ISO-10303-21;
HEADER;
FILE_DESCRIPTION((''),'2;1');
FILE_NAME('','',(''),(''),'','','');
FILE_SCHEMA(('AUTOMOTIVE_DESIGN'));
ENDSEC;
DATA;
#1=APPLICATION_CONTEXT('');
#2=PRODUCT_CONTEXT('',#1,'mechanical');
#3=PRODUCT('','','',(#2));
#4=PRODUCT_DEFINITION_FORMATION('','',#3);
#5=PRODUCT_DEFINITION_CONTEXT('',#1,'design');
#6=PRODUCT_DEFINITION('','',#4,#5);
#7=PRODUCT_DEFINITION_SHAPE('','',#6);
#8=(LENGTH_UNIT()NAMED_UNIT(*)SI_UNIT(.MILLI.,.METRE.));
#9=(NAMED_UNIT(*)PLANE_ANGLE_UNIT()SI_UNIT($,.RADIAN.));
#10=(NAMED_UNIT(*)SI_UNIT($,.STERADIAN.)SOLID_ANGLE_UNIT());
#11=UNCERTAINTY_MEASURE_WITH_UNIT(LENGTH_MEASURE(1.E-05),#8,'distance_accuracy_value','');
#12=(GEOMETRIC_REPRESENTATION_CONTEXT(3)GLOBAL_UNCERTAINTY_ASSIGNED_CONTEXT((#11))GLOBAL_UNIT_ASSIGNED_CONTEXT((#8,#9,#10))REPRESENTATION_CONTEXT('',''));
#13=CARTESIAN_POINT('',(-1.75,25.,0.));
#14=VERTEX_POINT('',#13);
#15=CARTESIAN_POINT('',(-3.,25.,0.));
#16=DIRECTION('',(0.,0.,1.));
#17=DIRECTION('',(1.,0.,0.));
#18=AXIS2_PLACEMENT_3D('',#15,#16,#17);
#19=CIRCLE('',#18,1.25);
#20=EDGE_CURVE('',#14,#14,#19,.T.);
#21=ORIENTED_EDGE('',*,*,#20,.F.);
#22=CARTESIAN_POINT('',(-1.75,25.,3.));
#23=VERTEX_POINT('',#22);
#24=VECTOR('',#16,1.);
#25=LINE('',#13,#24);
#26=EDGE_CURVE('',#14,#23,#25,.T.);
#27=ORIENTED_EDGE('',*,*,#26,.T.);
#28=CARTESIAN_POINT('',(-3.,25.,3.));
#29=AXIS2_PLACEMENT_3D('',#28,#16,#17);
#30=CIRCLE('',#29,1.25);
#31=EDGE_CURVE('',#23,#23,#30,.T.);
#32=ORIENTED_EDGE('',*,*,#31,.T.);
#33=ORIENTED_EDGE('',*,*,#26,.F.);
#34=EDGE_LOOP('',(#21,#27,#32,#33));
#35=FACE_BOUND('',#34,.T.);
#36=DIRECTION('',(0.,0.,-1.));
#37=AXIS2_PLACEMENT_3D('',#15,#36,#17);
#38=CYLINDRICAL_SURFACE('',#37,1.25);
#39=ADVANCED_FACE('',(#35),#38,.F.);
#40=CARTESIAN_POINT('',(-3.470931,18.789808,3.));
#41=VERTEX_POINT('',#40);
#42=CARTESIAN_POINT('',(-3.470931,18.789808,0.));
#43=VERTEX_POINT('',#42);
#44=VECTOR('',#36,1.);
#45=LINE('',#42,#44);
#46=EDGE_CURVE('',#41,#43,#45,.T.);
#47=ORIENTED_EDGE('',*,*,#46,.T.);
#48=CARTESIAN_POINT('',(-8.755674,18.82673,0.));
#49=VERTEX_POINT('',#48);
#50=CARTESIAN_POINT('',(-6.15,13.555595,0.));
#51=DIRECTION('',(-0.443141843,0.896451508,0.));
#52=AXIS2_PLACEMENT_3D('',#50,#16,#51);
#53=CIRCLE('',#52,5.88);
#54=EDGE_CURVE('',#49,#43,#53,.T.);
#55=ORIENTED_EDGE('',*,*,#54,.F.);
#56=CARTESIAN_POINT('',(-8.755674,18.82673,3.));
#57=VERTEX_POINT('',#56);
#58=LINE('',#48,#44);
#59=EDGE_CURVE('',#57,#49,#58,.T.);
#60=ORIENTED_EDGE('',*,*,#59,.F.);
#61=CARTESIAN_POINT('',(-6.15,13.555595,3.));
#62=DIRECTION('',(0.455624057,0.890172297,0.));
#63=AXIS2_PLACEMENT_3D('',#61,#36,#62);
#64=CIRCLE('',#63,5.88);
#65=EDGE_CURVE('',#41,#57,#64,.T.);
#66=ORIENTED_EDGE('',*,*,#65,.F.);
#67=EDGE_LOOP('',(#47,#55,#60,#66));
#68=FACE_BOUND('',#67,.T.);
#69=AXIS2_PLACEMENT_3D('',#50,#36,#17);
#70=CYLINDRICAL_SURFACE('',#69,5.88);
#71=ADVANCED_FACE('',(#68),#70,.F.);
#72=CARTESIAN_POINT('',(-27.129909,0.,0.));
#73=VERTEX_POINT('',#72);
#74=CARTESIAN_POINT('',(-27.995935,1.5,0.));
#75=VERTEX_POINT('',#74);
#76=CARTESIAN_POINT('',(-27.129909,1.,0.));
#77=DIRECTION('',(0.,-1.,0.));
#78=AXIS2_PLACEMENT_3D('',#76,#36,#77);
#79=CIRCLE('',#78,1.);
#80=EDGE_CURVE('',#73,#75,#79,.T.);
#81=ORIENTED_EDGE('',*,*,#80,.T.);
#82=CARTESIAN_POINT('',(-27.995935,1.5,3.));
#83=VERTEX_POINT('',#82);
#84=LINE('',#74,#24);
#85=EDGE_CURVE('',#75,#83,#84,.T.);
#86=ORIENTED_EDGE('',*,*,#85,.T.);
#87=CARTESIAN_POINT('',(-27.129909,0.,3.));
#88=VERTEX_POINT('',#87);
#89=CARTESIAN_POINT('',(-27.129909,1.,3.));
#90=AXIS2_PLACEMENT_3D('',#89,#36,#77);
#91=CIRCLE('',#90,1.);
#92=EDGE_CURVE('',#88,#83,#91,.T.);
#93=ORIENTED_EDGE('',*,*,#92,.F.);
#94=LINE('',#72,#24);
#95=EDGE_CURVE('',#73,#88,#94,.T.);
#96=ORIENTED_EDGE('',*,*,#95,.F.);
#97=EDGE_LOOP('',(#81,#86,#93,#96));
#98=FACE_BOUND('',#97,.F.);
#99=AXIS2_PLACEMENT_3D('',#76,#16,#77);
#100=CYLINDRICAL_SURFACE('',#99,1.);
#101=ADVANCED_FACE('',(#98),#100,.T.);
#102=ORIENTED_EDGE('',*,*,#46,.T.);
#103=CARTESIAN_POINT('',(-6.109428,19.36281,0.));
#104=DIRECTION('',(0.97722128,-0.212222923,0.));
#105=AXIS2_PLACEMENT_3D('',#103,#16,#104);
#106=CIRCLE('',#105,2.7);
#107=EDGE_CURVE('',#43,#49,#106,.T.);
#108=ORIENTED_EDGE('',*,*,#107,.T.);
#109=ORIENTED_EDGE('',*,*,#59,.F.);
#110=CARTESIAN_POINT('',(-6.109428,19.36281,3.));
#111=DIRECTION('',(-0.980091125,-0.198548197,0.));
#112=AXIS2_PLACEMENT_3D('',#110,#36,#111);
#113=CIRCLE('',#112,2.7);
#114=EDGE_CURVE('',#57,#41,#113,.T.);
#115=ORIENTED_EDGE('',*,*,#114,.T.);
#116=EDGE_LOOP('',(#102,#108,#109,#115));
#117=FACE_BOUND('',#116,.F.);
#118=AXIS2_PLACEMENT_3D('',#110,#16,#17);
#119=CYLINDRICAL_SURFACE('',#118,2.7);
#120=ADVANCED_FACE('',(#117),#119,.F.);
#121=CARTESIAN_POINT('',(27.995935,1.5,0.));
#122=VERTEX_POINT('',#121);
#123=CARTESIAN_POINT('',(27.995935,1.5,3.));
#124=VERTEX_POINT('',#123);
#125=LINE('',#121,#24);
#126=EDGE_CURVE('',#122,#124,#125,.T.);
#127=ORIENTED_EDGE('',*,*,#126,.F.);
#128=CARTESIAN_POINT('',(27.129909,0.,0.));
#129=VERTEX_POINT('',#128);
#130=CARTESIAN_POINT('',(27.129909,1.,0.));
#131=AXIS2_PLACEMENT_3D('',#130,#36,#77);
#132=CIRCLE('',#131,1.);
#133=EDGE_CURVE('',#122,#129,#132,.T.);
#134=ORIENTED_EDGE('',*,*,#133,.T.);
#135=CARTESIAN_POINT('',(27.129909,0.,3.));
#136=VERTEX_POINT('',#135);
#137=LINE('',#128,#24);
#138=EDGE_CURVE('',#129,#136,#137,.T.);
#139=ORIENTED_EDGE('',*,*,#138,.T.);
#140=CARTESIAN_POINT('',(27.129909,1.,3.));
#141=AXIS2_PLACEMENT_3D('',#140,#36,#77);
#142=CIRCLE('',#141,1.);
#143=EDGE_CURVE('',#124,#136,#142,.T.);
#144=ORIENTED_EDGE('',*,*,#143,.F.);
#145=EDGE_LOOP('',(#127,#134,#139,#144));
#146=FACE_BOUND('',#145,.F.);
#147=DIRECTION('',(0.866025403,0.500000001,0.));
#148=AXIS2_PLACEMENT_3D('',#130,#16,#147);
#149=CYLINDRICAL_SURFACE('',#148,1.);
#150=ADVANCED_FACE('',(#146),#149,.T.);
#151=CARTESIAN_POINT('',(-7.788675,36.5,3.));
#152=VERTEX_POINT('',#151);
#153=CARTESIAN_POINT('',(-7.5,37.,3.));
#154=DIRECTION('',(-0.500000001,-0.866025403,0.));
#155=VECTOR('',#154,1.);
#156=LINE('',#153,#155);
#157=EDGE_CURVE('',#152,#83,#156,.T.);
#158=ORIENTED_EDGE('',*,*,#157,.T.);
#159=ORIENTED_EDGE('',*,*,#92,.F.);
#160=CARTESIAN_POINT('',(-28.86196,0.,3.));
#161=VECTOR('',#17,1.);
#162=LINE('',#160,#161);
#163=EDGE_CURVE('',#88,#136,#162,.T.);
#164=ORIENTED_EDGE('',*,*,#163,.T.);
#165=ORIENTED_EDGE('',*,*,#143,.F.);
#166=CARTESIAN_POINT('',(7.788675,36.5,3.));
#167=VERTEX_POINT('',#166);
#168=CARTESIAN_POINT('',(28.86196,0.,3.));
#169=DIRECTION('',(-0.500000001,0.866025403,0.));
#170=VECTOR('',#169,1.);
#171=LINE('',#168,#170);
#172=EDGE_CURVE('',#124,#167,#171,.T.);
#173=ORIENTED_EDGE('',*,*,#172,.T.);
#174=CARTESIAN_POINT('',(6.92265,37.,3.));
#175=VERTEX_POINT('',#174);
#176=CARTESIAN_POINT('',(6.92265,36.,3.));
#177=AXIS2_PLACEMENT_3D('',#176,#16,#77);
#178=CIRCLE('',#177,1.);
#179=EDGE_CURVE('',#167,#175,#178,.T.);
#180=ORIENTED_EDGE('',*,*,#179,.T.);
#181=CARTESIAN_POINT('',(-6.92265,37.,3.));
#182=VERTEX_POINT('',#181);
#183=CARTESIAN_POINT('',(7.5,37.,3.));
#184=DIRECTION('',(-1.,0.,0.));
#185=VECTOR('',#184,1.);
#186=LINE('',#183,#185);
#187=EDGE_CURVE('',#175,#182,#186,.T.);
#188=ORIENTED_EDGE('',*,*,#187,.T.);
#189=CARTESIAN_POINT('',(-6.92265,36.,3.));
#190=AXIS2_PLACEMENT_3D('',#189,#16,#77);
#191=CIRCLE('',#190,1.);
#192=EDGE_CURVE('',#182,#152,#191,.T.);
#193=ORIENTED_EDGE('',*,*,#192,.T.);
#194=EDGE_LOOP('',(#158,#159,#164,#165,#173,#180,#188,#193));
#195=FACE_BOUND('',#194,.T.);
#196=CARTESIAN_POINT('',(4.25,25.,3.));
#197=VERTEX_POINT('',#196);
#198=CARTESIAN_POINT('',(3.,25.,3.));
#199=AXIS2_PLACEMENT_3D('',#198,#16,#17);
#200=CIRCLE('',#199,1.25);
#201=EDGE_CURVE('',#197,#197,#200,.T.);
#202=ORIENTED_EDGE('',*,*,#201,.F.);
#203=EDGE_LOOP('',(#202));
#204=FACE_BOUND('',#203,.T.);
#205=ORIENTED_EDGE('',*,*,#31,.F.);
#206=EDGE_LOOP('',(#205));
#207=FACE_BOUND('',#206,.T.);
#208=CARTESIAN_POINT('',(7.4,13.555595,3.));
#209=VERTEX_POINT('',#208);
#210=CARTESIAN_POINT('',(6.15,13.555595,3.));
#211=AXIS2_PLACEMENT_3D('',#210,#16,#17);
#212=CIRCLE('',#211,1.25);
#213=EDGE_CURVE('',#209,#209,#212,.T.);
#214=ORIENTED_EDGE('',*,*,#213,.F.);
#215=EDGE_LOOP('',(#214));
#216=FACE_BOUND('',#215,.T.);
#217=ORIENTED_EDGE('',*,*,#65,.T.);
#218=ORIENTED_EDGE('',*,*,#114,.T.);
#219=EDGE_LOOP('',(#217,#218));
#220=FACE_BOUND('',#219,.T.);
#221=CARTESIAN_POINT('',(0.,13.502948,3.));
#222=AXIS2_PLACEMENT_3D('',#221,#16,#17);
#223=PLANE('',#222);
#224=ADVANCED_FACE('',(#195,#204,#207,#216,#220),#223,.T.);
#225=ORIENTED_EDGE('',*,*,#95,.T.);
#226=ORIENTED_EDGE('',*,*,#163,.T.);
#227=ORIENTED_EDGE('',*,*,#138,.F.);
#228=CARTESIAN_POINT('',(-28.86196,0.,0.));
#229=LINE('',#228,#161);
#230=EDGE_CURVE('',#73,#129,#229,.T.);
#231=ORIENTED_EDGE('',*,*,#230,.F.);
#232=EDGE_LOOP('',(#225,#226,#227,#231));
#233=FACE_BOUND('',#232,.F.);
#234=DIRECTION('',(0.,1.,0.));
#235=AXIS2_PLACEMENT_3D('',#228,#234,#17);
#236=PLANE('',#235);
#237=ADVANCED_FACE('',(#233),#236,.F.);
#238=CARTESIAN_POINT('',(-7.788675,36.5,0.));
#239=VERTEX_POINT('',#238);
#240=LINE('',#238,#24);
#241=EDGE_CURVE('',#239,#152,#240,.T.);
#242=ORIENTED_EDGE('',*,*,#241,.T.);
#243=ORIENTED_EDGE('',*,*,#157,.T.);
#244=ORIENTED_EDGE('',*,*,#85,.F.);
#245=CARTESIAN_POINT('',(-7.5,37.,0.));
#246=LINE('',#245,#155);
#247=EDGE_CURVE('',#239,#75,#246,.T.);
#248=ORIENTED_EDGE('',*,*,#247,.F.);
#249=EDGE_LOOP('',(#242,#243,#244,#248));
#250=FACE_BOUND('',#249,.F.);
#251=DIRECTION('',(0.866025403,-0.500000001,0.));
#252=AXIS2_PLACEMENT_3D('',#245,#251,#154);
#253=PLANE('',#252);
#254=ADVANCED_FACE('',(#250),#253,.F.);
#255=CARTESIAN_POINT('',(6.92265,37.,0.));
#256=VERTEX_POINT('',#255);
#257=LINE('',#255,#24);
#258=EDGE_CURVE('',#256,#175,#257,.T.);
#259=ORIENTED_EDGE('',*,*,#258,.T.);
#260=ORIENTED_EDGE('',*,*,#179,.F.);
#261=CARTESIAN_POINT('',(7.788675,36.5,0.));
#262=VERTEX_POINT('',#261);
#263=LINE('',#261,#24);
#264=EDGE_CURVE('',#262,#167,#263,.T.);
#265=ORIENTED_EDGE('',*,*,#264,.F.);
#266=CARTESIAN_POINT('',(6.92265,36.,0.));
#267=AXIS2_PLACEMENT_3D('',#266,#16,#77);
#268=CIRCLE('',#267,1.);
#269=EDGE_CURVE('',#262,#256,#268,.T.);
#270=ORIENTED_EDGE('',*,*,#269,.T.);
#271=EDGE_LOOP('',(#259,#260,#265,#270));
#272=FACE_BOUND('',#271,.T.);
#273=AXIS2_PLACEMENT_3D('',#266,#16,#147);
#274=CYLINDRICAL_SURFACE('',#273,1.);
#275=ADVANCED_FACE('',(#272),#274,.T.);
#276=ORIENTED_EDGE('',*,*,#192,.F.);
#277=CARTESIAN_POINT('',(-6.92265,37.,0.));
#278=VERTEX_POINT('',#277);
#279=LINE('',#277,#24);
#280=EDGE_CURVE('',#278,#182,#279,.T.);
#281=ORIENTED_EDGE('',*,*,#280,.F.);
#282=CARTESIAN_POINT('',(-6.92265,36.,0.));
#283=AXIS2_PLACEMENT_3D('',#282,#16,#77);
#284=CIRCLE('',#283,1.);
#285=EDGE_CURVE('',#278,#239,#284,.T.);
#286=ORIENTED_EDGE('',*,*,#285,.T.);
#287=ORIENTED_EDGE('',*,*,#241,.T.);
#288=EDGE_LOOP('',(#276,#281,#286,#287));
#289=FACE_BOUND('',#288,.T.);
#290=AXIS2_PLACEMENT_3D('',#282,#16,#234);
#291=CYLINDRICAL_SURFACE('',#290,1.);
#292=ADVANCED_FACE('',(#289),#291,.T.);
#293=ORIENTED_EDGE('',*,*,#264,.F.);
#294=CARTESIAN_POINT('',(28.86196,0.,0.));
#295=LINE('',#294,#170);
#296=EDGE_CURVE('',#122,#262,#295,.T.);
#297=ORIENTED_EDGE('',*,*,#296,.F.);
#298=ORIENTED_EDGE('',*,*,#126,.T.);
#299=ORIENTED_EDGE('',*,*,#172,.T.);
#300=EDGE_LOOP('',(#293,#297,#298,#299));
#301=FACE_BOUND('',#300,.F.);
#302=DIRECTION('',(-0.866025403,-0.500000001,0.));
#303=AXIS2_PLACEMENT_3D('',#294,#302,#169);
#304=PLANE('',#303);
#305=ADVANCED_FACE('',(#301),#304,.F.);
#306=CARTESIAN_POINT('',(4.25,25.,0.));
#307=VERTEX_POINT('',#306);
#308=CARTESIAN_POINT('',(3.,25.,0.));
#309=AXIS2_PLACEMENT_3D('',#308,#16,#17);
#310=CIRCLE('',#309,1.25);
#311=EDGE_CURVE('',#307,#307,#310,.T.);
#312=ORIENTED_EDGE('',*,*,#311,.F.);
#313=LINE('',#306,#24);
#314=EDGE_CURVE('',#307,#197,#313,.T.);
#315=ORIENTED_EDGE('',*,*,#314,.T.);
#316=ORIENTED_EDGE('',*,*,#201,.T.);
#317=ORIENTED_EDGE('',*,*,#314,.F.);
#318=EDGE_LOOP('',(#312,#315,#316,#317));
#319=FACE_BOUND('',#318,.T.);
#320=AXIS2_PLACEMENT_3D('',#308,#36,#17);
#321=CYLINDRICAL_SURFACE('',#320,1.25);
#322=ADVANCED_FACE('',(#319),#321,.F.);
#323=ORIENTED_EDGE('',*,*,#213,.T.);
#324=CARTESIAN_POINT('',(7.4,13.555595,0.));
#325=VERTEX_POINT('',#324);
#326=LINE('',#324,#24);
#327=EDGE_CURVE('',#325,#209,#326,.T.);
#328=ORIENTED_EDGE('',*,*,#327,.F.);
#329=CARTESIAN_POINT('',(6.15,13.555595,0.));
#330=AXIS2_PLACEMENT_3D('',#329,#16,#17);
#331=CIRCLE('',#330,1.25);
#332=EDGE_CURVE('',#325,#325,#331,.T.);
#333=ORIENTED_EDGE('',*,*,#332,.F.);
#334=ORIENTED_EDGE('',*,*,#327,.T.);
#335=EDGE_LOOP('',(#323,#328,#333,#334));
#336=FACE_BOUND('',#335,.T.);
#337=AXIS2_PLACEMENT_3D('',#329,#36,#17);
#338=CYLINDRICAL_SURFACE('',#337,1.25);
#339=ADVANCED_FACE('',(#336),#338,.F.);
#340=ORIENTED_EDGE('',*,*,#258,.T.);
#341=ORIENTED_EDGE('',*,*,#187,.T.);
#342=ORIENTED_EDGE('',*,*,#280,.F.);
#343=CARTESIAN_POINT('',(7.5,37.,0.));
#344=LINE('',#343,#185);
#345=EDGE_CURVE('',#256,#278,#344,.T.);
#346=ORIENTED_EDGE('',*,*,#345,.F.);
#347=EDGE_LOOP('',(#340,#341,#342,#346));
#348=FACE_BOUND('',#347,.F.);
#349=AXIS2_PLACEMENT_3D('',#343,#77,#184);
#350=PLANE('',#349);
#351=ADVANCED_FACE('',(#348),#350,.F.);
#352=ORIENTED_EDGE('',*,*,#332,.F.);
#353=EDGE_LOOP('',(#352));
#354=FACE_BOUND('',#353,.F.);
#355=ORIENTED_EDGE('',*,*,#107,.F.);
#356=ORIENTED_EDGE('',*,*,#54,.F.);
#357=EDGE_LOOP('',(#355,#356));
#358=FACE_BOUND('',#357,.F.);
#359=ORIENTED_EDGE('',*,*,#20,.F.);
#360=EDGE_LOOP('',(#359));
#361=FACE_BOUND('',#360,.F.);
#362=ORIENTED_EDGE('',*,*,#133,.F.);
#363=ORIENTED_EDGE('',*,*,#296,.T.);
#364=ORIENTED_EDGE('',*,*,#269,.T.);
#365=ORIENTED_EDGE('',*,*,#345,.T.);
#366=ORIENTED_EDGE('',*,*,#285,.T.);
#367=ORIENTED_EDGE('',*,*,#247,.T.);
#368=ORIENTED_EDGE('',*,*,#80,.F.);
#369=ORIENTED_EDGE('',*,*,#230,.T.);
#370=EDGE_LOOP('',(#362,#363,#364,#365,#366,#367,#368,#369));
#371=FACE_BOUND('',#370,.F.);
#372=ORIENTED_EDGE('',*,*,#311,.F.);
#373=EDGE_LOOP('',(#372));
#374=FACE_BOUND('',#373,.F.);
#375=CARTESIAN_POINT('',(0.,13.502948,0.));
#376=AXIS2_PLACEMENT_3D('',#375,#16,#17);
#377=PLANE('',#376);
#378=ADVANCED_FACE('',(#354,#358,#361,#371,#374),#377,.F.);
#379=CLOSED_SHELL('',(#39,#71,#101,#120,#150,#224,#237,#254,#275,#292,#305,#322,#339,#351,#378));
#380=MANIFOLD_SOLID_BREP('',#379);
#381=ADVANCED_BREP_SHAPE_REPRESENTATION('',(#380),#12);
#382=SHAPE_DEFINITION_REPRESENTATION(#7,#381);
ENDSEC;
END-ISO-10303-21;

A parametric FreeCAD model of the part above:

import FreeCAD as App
import Part
import Sketcher

V = App.Vector
Q = App.Units.Quantity


def edges_at(feature, points):
    """Names of the edges that pass closest to the given points."""
    edges = feature.Shape.Edges
    near = lambda p: min(range(len(edges)), key=lambda i: edges[i].distToShape(Part.Vertex(*p))[0])
    return sorted({f"Edge{near(p) + 1}" for p in points})

doc = App.newDocument("Part")
body = doc.addObject("PartDesign::Body", "Body")

sketch1 = body.newObject("Sketcher::SketchObject", "Sketch")
sketch1.AttachmentSupport = (doc.getObject("XY_Plane"), [""])
sketch1.MapMode = "FlatFace"
sketch1.AttachmentOffset = App.Placement(V(0, 0, 3), App.Rotation())
sketch1.addGeometry(Part.Circle(V(-6.109428, 19.36281, 0), V(0, 0, 1), 2.7), False)
sketch1.addConstraint([
    Sketcher.Constraint("Diameter", 0, 5.4),
    Sketcher.Constraint("DistanceX", 0, 3, -1, 1, 6.109428),
    Sketcher.Constraint("DistanceY", -1, 1, 0, 3, 19.36281),
])
pad1 = body.newObject("PartDesign::Pad", "Pad")
pad1.Profile = sketch1
pad1.Length = 10
pad1.Reversed = True
body2 = doc.addObject("PartDesign::Body", "Body001")

sketch2 = body2.newObject("Sketcher::SketchObject", "Sketch001")
sketch2.AttachmentSupport = (doc.getObject("XY_Plane001"), [""])
sketch2.MapMode = "FlatFace"
sketch2.addGeometry([
    Part.LineSegment(V(28.86196, 0, 0), V(7.5, 37, 0)),
    Part.LineSegment(V(7.5, 37, 0), V(-7.5, 37, 0)),
    Part.LineSegment(V(-7.5, 37, 0), V(-28.86196, 0, 0)),
    Part.LineSegment(V(-28.86196, 0, 0), V(28.86196, 0, 0)),
    Part.Circle(V(-6.15, 13.555595, 0), V(0, 0, 1), 5.88),
    Part.Circle(V(6.15, 13.555595, 0), V(0, 0, 1), 1.25),
    Part.Circle(V(-3, 25, 0), V(0, 0, 1), 1.25),
    Part.Circle(V(3, 25, 0), V(0, 0, 1), 1.25),
], False)
sketch2.addConstraint([
    Sketcher.Constraint("Coincident", 0, 2, 1, 1),
    Sketcher.Constraint("Coincident", 1, 2, 2, 1),
    Sketcher.Constraint("Coincident", 2, 2, 3, 1),
    Sketcher.Constraint("Coincident", 3, 2, 0, 1),
    Sketcher.Constraint("Horizontal", 1),
    Sketcher.Constraint("Horizontal", 3),
    Sketcher.Constraint("Equal", 5, 6),
    Sketcher.Constraint("Equal", 6, 7),
    Sketcher.Constraint("Symmetric", 2, 2, 3, 2, -1, 1),
    Sketcher.Constraint("Symmetric", 4, 3, 5, 3, -2),
    Sketcher.Constraint("Symmetric", 6, 3, 7, 3, -2),
    Sketcher.Constraint("Equal", 0, 2),
    Sketcher.Constraint("Diameter", 5, 2.5),
    Sketcher.Constraint("Diameter", 4, 11.76),
    Sketcher.Constraint("DistanceX", 1, 2, 1, 1, 15.0),
    Sketcher.Constraint("Angle", 0, Q("120 deg")),
    Sketcher.Constraint("DistanceX", 6, 3, -1, 1, 3.0),
    Sketcher.Constraint("DistanceY", -1, 1, 6, 3, 25.0),
    Sketcher.Constraint("DistanceY", -1, 1, 0, 2, 37.0),
    Sketcher.Constraint("DistanceX", 4, 3, 5, 3, 12.3),
    Sketcher.Constraint("DistanceY", -1, 1, 4, 3, 13.555595),
])
pad2 = body2.newObject("PartDesign::Pad", "Pad001")
pad2.Profile = sketch2
pad2.Length = 3
doc.recompute()

fillet = body2.newObject("PartDesign::Fillet", "Fillet")
fillet.Base = (pad2, edges_at(pad2, [
    (28.862, 0, 1.5),
    (7.5, 37, 1.5),
    (-7.5, 37, 1.5),
    (-28.862, 0, 1.5),
]))
fillet.Radius = 1
doc.recompute()

boolean = body2.newObject("PartDesign::Boolean", "Boolean")
boolean.Type = "Cut"
boolean.addObjects([body])

doc.recompute()
